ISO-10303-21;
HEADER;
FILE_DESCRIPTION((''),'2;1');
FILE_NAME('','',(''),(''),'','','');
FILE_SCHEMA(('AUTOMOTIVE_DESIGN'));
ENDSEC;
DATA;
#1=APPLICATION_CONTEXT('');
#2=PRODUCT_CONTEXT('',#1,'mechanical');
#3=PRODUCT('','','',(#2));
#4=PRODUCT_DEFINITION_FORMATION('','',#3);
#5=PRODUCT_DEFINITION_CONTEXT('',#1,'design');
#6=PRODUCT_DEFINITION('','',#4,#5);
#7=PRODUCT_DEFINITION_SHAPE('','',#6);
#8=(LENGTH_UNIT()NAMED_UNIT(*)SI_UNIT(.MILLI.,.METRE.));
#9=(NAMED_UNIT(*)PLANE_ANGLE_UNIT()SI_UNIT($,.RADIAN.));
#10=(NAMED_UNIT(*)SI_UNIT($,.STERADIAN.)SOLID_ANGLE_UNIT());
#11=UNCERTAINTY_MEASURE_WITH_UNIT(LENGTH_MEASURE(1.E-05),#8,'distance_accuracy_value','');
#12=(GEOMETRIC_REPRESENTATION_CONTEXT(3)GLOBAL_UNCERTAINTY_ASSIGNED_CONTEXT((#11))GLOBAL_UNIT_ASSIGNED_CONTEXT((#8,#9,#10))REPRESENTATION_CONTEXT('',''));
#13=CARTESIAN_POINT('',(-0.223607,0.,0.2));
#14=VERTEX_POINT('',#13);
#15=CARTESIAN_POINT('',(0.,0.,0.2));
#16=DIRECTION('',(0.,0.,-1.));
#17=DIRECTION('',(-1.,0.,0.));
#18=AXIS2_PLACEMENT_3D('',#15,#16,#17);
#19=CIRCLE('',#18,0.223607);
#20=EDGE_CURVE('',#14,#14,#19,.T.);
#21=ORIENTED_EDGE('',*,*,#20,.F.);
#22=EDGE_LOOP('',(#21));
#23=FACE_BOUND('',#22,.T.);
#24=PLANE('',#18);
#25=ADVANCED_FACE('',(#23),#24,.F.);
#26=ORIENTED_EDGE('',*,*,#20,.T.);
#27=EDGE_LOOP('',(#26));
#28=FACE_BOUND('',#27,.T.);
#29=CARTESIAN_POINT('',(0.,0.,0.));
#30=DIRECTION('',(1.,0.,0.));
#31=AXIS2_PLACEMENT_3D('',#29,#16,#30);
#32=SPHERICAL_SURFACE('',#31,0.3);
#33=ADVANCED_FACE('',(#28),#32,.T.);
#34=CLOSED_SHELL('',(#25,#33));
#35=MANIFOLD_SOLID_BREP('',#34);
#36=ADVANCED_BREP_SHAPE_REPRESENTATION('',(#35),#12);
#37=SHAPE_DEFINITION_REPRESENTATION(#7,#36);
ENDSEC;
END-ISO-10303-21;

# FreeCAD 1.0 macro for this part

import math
import FreeCAD as App
import Part
import Sketcher

doc = App.newDocument("Part")
body = doc.addObject("PartDesign::Body", "Body")

sketch1 = body.newObject("Sketcher::SketchObject", "Sketch")
sketch1.AttachmentSupport = (doc.getObject("XZ_Plane"), [""])
sketch1.MapMode = "FlatFace"
sketch1.addGeometry(Part.LineSegment(App.Vector(0, -0.3, 0), App.Vector(0, 0.2, 0)), False)
sketch1.addGeometry(Part.LineSegment(App.Vector(0, 0.2, 0), App.Vector(0.22, 0.2, 0)), False)
sketch1.addGeometry(Part.ArcOfCircle(Part.Circle(App.Vector(0, 0, 0), App.Vector(0, 0, 1), 0.3), math.radians(-90), math.radians(42)), False)
sketch1.addConstraint(Sketcher.Constraint("Coincident", 0, 2, 1, 1))
sketch1.addConstraint(Sketcher.Constraint("Coincident", 1, 2, 2, 2))
sketch1.addConstraint(Sketcher.Constraint("Coincident", 2, 1, 0, 1))
sketch1.addConstraint(Sketcher.Constraint("Vertical", 0))
sketch1.addConstraint(Sketcher.Constraint("Horizontal", 1))
sketch1.addConstraint(Sketcher.Constraint("Coincident", 2, 3, -1, 1))
sketch1.addConstraint(Sketcher.Constraint("PointOnObject", 0, 2, -2))
sketch1.addConstraint(Sketcher.Constraint("Radius", 2, 0.3))
sketch1.addConstraint(Sketcher.Constraint("DistanceY", 0, 1, 0, 2, 0.5))
revolution = body.newObject("PartDesign::Revolution", "Revolution")
revolution.Profile = sketch1
revolution.ReferenceAxis = (sketch1, ["V_Axis"])
revolution.Angle = 360

doc.recompute()
